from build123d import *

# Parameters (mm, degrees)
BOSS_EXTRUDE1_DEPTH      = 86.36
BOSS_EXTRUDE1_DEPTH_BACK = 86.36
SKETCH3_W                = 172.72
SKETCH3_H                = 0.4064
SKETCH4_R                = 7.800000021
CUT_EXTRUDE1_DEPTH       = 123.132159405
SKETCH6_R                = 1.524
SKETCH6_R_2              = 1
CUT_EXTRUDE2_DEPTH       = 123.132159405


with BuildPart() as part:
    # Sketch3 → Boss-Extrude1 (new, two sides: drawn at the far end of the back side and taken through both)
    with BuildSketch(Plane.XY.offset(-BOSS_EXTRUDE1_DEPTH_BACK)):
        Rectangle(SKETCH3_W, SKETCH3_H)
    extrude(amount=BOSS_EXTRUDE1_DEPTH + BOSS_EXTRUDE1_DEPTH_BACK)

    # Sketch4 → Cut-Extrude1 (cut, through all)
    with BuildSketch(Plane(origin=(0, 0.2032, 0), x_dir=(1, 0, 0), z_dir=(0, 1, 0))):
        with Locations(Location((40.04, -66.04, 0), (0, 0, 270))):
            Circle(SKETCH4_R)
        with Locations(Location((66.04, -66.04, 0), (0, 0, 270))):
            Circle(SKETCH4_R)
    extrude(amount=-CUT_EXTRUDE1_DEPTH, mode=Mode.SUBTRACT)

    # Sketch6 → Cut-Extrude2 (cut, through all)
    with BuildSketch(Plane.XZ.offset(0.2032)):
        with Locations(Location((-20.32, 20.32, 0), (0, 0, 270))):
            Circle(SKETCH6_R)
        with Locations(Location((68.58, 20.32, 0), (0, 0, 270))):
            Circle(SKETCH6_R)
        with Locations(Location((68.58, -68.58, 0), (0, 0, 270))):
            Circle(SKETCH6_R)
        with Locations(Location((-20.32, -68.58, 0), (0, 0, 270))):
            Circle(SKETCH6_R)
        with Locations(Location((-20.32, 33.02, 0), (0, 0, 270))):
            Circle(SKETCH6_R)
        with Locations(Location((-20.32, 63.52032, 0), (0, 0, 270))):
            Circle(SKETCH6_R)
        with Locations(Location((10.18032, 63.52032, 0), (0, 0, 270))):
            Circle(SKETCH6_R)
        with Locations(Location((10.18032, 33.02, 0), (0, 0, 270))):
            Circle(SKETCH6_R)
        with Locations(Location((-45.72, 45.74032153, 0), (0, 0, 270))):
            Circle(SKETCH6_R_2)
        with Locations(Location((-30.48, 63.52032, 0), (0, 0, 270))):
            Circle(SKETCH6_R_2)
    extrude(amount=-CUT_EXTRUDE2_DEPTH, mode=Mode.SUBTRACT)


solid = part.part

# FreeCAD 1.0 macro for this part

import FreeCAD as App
import Part
import Sketcher
from FreeCAD import Vector
Q = App.Units.Quantity

doc = App.newDocument("Part")
params = doc.addObject("Spreadsheet::Sheet", "Params")
for row, (alias, value) in enumerate([
    ("sketch1_width", "6.8 in"),
    ("sketch1_height", "0.016 in"),
    ("pad1_length", "3.4 in"),
    ("pad1_length2", "3.4 in"),
    ("sketch3_diameter", "0.12 in"),
], start=1):
    params.set(f"A{row}", alias)
    params.set(f"B{row}", "=" + value)
    params.setAlias(f"B{row}", alias)

body = doc.addObject("PartDesign::Body", "Body")

sketch1 = body.newObject("Sketcher::SketchObject", "Sketch")
sketch1.AttachmentSupport = (doc.getObject("XY_Plane"), [""])
sketch1.MapMode = "FlatFace"
sketch1.addGeometry(Part.LineSegment(Vector(-86.36, 0.2, 0), Vector(-86.36, -0.2, 0)), False)
sketch1.addGeometry(Part.LineSegment(Vector(-86.36, -0.2, 0), Vector(86.36, -0.2, 0)), False)
sketch1.addGeometry(Part.LineSegment(Vector(86.36, -0.2, 0), Vector(86.36, 0.2, 0)), False)
sketch1.addGeometry(Part.LineSegment(Vector(86.36, 0.2, 0), Vector(-86.36, 0.2, 0)), False)
sketch1.addConstraint(Sketcher.Constraint("Coincident", 0, 2, 1, 1))
sketch1.addConstraint(Sketcher.Constraint("Coincident", 1, 2, 2, 1))
sketch1.addConstraint(Sketcher.Constraint("Coincident", 2, 2, 3, 1))
sketch1.addConstraint(Sketcher.Constraint("Coincident", 3, 2, 0, 1))
sketch1.addConstraint(Sketcher.Constraint("Vertical", 0))
sketch1.addConstraint(Sketcher.Constraint("Horizontal", 1))
sketch1.addConstraint(Sketcher.Constraint("Vertical", 2))
sketch1.addConstraint(Sketcher.Constraint("Horizontal", 3))
sketch1.addConstraint(Sketcher.Constraint("Symmetric", 0, 2, 2, 2, -1, 1))
sketch1.addConstraint(Sketcher.Constraint("DistanceX", 1, 1, 1, 2, Q("6.8 in")))
sketch1.addConstraint(Sketcher.Constraint("DistanceY", 0, 2, 0, 1, Q("0.016 in")))
sketch1.setExpression("Constraints[9]", "Params.sketch1_width")
sketch1.setExpression("Constraints[10]", "Params.sketch1_height")
pad1 = body.newObject("PartDesign::Pad", "Pad")
pad1.Profile = sketch1
pad1.Type = "TwoLengths"
pad1.setExpression("Length", "Params.pad1_length")
pad1.setExpression("Length2", "Params.pad1_length2")

sketch2 = body.newObject("Sketcher::SketchObject", "Sketch001")
sketch2.AttachmentSupport = (doc.getObject("XZ_Plane"), [""])
sketch2.MapMode = "FlatFace"
sketch2.AttachmentOffset = App.Placement(Vector(0, 0, -0.008 * 25.4), App.Rotation())
sketch2.addGeometry(Part.Circle(Vector(40, 66, 0), Vector(0, 0, 1), 8), False)
sketch2.addGeometry(Part.Circle(Vector(66, 66, 0), Vector(0, 0, 1), 8), False)
sketch2.addConstraint(Sketcher.Constraint("Equal", 0, 1))
sketch2.addConstraint(Sketcher.Constraint("Horizontal", 0, 3, 1, 3))
sketch2.addConstraint(Sketcher.Constraint("DistanceY", -1, 1, 0, 3, Q("2.6 in")))
sketch2.addConstraint(Sketcher.Constraint("DistanceX", -1, 1, 1, 3, Q("2.6 in")))
sketch2.addConstraint(Sketcher.Constraint("Diameter", 0, Q("15.6 mm")))
sketch2.addConstraint(Sketcher.Constraint("DistanceX", -1, 1, 0, 3, Q("40.04 mm")))
pocket1 = body.newObject("PartDesign::Pocket", "Pocket")
pocket1.Profile = sketch2
pocket1.Type = "ThroughAll"
pocket1.Reversed = True

sketch3 = body.newObject("Sketcher::SketchObject", "Sketch002")
sketch3.AttachmentSupport = (doc.getObject("XZ_Plane"), [""])
sketch3.MapMode = "FlatFace"
sketch3.AttachmentOffset = App.Placement(Vector(0, 0, 0.008 * 25.4), App.Rotation())
sketch3.addGeometry(Part.Circle(Vector(-20.3, 20.3, 0), Vector(0, 0, 1), 1.5), False)
sketch3.addGeometry(Part.Circle(Vector(68.6, 20.3, 0), Vector(0, 0, 1), 1.5), False)
sketch3.addGeometry(Part.Circle(Vector(68.6, -68.6, 0), Vector(0, 0, 1), 1.5), False)
sketch3.addGeometry(Part.Circle(Vector(-20.3, -68.6, 0), Vector(0, 0, 1), 1.5), False)
sketch3.addGeometry(Part.Circle(Vector(-20.3, 33, 0), Vector(0, 0, 1), 1.5), False)
sketch3.addGeometry(Part.Circle(Vector(-20.3, 63.5, 0), Vector(0, 0, 1), 1.5), False)
sketch3.addGeometry(Part.Circle(Vector(10.2, 63.5, 0), Vector(0, 0, 1), 1.5), False)
sketch3.addGeometry(Part.Circle(Vector(10.2, 33, 0), Vector(0, 0, 1), 1.5), False)
sketch3.addGeometry(Part.Circle(Vector(-45.7, 45.7, 0), Vector(0, 0, 1), 1), False)
sketch3.addGeometry(Part.Circle(Vector(-30.5, 63.5, 0), Vector(0, 0, 1), 1), False)
sketch3.addConstraint(Sketcher.Constraint("Equal", 0, 1))
sketch3.addConstraint(Sketcher.Constraint("Equal", 1, 2))
sketch3.addConstraint(Sketcher.Constraint("Equal", 2, 3))
sketch3.addConstraint(Sketcher.Constraint("Equal", 3, 4))
sketch3.addConstraint(Sketcher.Constraint("Equal", 4, 5))
sketch3.addConstraint(Sketcher.Constraint("Equal", 5, 6))
sketch3.addConstraint(Sketcher.Constraint("Equal", 6, 7))
sketch3.addConstraint(Sketcher.Constraint("Equal", 8, 9))
sketch3.addConstraint(Sketcher.Constraint("Horizontal", 0, 3, 1, 3))
sketch3.addConstraint(Sketcher.Constraint("Horizontal", 2, 3, 3, 3))
sketch3.addConstraint(Sketcher.Constraint("Horizontal", 5, 3, 6, 3))
sketch3.addConstraint(Sketcher.Constraint("Horizontal", 4, 3, 7, 3))
sketch3.addConstraint(Sketcher.Constraint("Horizontal", 6, 3, 9, 3))
sketch3.addConstraint(Sketcher.Constraint("Vertical", 1, 3, 2, 3))
sketch3.addConstraint(Sketcher.Constraint("Vertical", 0, 3, 3, 3))
sketch3.addConstraint(Sketcher.Constraint("Vertical", 3, 3, 4, 3))
sketch3.addConstraint(Sketcher.Constraint("Vertical", 4, 3, 5, 3))
sketch3.addConstraint(Sketcher.Constraint("Vertical", 6, 3, 7, 3))
sketch3.addConstraint(Sketcher.Constraint("Diameter", 0, Q("0.12 in")))
sketch3.addConstraint(Sketcher.Constraint("DistanceY", 3, 3, 4, 3, Q("4 in")))
sketch3.addConstraint(Sketcher.Constraint("DistanceX", 8, 3, 4, 3, Q("1 in")))
sketch3.addConstraint(Sketcher.Constraint("DistanceX", 0, 3, -1, 1, Q("0.8 in")))
sketch3.addConstraint(Sketcher.Constraint("DistanceY", -1, 1, 0, 3, Q("0.8 in")))
sketch3.addConstraint(Sketcher.Constraint("DistanceX", -1, 1, 1, 3, Q("2.7 in")))
sketch3.addConstraint(Sketcher.Constraint("DistanceY", 2, 3, -1, 1, Q("2.7 in")))
sketch3.addConstraint(Sketcher.Constraint("DistanceX", 9, 3, -1, 1, Q("1.2 in")))
sketch3.addConstraint(Sketcher.Constraint("DistanceY", 8, 3, 5, 3, Q("0.6999999 in")))
sketch3.addConstraint(Sketcher.Constraint("Diameter", 8, Q("2 mm")))
sketch3.addConstraint(Sketcher.Constraint("DistanceY", -1, 1, 5, 3, Q("2.5008 in")))
sketch3.addConstraint(Sketcher.Constraint("DistanceX", -1, 1, 6, 3, Q("0.4008 in")))
sketch3.setExpression("Constraints[18]", "Params.sketch3_diameter")
pocket2 = body.newObject("PartDesign::Pocket", "Pocket001")
pocket2.Profile = sketch3
pocket2.Type = "ThroughAll"

doc.recompute()
